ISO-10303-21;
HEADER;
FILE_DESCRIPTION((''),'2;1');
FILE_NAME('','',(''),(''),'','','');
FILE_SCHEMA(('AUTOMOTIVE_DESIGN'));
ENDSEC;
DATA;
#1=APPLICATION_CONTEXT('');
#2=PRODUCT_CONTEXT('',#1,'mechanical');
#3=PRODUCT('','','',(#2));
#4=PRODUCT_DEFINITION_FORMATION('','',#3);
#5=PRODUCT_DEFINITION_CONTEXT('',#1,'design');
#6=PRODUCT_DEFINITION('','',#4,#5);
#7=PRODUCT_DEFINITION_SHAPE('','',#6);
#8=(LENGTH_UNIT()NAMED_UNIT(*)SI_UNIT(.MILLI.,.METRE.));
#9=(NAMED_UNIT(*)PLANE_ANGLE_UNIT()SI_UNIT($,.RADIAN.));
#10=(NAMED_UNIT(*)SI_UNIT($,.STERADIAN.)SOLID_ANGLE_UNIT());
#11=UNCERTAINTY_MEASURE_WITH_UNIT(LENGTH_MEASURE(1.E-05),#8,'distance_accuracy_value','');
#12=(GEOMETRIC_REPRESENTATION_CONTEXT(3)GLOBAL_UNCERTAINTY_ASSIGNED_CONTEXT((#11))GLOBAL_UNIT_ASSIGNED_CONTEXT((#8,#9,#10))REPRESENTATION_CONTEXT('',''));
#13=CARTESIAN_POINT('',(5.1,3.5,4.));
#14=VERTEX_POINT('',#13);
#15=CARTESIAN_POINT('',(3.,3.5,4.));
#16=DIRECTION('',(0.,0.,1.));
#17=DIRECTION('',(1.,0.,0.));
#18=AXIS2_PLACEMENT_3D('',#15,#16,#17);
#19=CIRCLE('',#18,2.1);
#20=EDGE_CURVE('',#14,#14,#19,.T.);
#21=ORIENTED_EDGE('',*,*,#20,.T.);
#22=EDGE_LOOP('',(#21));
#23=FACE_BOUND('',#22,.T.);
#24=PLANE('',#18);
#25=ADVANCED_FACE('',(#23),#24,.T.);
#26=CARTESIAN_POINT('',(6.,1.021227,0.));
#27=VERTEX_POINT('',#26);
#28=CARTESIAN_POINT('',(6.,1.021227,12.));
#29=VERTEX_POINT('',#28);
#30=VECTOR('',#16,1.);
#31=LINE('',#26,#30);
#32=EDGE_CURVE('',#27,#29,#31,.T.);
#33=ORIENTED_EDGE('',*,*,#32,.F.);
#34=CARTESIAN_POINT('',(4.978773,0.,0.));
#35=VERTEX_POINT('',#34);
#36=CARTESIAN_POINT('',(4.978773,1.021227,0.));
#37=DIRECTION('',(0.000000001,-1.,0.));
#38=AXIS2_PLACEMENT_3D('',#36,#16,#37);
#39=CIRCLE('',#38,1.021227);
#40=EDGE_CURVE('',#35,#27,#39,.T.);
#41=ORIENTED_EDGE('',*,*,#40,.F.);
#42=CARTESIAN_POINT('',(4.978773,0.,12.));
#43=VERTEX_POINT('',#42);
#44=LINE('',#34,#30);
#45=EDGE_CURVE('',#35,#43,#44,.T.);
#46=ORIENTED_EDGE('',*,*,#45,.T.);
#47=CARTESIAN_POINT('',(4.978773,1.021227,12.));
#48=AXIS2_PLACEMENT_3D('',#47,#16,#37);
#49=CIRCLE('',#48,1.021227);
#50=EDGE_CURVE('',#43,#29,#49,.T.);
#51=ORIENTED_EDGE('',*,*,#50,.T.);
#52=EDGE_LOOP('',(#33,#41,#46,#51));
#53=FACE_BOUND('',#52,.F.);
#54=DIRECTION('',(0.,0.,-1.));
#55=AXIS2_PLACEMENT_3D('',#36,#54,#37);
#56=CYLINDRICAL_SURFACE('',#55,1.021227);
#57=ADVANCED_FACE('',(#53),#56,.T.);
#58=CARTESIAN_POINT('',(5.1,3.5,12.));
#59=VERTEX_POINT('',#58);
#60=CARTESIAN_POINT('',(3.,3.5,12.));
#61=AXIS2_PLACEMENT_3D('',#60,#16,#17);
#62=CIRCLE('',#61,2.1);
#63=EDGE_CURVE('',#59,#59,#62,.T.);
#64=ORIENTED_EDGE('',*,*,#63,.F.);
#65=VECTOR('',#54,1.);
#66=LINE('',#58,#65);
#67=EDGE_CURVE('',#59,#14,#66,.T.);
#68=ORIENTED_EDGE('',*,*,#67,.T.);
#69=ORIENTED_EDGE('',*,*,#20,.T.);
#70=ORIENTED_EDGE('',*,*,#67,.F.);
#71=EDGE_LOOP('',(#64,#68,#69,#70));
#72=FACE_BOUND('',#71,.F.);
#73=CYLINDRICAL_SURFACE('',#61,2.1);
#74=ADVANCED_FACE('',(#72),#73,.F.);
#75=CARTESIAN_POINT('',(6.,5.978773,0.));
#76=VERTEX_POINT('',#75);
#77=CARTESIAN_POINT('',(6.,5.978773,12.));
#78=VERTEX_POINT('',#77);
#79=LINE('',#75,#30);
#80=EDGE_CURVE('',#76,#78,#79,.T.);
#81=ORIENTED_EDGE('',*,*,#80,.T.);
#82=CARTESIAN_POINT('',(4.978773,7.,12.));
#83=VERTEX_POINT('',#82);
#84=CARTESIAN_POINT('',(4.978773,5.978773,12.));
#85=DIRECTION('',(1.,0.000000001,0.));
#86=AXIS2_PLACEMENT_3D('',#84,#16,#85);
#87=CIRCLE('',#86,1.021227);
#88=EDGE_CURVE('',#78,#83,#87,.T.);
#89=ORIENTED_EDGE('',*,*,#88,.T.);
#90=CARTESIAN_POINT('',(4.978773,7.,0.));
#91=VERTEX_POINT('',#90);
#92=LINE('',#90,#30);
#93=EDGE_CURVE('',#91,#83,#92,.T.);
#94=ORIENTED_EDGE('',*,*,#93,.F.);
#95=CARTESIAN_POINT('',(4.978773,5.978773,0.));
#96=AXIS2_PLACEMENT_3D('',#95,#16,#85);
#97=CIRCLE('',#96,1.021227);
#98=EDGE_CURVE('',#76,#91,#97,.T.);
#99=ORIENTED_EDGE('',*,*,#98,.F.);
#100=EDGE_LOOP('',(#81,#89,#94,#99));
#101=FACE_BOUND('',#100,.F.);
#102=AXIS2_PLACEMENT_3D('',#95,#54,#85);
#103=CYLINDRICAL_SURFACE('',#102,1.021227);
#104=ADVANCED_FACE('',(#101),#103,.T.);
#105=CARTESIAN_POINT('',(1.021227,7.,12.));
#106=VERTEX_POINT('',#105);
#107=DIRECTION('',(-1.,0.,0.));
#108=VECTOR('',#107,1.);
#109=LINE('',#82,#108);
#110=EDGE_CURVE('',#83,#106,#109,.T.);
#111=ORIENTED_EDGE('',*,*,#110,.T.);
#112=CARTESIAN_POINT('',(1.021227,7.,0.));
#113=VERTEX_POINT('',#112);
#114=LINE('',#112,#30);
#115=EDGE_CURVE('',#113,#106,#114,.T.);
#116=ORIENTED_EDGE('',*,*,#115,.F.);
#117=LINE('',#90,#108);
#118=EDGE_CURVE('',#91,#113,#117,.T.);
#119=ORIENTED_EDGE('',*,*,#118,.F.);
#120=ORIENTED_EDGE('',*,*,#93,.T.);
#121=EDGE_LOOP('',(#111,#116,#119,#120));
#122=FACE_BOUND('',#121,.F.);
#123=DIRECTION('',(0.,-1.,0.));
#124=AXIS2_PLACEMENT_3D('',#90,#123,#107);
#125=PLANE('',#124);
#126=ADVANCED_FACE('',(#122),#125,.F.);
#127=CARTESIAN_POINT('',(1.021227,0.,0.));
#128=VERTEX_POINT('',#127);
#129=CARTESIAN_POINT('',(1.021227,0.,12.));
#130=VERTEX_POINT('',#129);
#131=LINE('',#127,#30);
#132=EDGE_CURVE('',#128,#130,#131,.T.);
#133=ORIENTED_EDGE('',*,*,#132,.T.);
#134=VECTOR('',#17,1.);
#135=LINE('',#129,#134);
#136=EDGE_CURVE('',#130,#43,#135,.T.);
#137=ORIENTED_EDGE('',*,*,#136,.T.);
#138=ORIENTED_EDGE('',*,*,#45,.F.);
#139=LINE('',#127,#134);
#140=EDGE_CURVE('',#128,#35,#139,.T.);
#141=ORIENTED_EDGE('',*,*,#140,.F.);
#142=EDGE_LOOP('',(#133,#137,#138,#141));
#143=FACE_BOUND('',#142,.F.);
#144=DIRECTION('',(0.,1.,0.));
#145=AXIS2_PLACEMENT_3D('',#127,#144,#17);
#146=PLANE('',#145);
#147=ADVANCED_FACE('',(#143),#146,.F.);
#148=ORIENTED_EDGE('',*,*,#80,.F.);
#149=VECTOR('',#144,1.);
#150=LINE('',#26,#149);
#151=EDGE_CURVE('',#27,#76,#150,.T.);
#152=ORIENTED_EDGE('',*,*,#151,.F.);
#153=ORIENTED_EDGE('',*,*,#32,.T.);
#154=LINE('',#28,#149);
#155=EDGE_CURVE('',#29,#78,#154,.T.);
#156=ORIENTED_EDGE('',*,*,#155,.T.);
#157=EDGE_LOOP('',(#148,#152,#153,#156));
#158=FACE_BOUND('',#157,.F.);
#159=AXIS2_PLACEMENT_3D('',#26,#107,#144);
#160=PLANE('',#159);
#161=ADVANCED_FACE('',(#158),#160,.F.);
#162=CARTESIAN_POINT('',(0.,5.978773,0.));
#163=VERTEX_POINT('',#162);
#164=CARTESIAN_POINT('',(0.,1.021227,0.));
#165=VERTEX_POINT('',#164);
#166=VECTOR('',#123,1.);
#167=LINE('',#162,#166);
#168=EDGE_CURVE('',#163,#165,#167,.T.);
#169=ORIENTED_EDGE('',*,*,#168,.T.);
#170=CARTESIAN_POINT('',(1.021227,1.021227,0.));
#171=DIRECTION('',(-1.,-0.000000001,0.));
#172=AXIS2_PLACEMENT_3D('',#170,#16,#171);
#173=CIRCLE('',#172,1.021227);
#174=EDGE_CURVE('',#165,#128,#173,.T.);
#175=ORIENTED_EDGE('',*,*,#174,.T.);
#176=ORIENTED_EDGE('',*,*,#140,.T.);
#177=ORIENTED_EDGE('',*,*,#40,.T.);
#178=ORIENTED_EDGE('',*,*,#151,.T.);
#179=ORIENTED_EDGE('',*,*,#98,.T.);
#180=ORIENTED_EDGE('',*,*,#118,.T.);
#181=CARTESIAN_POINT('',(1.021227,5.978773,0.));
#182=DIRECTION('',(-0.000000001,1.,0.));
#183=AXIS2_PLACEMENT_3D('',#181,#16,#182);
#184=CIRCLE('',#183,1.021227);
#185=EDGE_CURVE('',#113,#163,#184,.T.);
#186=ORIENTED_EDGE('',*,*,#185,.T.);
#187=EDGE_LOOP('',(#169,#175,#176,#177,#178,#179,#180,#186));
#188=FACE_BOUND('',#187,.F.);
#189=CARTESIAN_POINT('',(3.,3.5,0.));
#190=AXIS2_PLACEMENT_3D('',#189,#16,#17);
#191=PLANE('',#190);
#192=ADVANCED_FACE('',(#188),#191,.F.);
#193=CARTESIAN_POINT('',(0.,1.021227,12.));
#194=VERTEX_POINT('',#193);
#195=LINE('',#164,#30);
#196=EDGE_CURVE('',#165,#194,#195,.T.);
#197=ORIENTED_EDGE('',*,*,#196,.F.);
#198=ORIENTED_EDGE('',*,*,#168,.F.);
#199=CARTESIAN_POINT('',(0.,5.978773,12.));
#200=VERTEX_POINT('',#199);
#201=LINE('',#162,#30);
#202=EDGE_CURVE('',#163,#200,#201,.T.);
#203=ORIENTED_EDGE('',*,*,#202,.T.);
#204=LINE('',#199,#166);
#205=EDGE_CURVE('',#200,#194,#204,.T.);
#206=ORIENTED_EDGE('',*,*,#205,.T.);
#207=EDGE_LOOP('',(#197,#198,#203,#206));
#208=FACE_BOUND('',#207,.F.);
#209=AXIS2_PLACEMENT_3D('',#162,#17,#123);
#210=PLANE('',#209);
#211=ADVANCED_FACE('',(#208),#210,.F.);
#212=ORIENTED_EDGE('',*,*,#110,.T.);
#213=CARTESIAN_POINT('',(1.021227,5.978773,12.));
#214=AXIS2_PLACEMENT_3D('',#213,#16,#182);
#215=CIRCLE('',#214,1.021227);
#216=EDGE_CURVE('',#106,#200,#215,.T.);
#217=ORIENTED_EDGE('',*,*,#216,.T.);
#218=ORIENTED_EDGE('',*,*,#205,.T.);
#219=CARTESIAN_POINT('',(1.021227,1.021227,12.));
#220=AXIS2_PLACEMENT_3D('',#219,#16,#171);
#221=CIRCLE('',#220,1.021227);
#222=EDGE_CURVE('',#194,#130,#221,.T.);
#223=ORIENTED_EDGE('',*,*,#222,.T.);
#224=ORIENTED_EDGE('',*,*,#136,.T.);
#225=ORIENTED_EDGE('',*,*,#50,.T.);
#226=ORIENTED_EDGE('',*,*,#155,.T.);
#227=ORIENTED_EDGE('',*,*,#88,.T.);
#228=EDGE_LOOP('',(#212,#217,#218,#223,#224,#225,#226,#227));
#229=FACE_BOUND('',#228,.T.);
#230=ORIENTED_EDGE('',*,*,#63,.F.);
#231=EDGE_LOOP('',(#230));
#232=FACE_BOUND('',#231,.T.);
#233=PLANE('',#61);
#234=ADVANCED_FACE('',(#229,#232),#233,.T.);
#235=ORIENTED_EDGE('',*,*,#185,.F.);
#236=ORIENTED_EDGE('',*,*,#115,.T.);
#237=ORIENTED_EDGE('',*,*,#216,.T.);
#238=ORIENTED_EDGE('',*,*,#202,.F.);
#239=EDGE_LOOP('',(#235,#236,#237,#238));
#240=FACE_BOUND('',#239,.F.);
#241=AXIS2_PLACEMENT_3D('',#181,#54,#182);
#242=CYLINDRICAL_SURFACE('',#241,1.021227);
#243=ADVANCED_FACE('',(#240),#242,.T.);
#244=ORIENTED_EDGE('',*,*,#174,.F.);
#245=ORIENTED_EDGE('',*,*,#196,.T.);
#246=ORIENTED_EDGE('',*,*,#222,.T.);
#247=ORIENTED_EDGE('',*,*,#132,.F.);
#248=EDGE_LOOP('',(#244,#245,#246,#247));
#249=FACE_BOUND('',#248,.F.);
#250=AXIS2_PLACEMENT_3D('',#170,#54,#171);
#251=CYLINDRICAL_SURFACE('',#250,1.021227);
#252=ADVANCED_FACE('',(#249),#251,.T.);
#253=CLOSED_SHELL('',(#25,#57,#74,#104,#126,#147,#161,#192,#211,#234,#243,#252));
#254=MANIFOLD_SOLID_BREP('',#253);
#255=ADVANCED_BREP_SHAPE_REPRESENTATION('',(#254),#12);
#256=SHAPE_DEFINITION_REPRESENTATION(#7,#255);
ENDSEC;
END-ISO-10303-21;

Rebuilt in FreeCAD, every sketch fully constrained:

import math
import FreeCAD as App
import Part
import Sketcher

V = App.Vector

doc = App.newDocument("Part")
body = doc.addObject("PartDesign::Body", "Body")

# Sketch on XY plane
sketch1 = doc.addObject("Sketcher::SketchObject", "Sketch")
body.addObject(sketch1)
sketch1.AttachmentSupport = (doc.XY_Plane, [""])
sketch1.MapMode = "FlatFace"
sketch1.addGeometry([
    Part.LineSegment(V(1.021227, 0, 0), V(4.978773, 0, 0)),  # 0
    Part.ArcOfCircle(Part.Circle(V(4.978773, 1.021227, 0), V(0, 0, 1), 1.021227), math.radians(-90), math.radians(0)),  # 1
    Part.LineSegment(V(6, 1.021227, 0), V(6, 5.978773, 0)),  # 2
    Part.ArcOfCircle(Part.Circle(V(4.978773, 5.978773, 0), V(0, 0, 1), 1.021227), math.radians(0), math.radians(90)),  # 3
    Part.LineSegment(V(4.978773, 7, 0), V(1.021227, 7, 0)),  # 4
    Part.ArcOfCircle(Part.Circle(V(1.021227, 5.978773, 0), V(0, 0, 1), 1.021227), math.radians(90), math.radians(180)),  # 5
    Part.LineSegment(V(0, 5.978773, 0), V(0, 1.021227, 0)),  # 6
    Part.ArcOfCircle(Part.Circle(V(1.021227, 1.021227, 0), V(0, 0, 1), 1.021227), math.radians(-180), math.radians(-90)),  # 7
], False)
sketch1.addConstraint([
    Sketcher.Constraint("Tangent", 0, 2, 1, 1),
    Sketcher.Constraint("Tangent", 1, 2, 2, 1),
    Sketcher.Constraint("Tangent", 2, 2, 3, 1),
    Sketcher.Constraint("Tangent", 3, 2, 4, 1),
    Sketcher.Constraint("Tangent", 4, 2, 5, 1),
    Sketcher.Constraint("Tangent", 5, 2, 6, 1),
    Sketcher.Constraint("Tangent", 6, 2, 7, 1),
    Sketcher.Constraint("Tangent", 7, 2, 0, 1),
    Sketcher.Constraint("Horizontal", 0),
    Sketcher.Constraint("Vertical", 2),
    Sketcher.Constraint("Horizontal", 4),
    Sketcher.Constraint("Vertical", 6),
    Sketcher.Constraint("Equal", 1, 3),
    Sketcher.Constraint("Equal", 3, 5),
    Sketcher.Constraint("Equal", 5, 7),
    Sketcher.Constraint("PointOnObject", 0, 2, -1),
    Sketcher.Constraint("PointOnObject", 5, 2, -2),
    Sketcher.Constraint("DistanceX", -1, 1, 1, 2, 6.0),
    Sketcher.Constraint("DistanceY", -1, 1, 3, 2, 7.0),
    Sketcher.Constraint("Radius", 1, 1.021227),
])
pad1 = doc.addObject("PartDesign::Pad", "Pad")
body.addObject(pad1)
pad1.Profile = sketch1
pad1.Length = 12

# Sketch on XY plane
sketch2 = doc.addObject("Sketcher::SketchObject", "Sketch001")
body.addObject(sketch2)
sketch2.AttachmentSupport = (doc.XY_Plane, [""])
sketch2.MapMode = "FlatFace"
sketch2.AttachmentOffset = App.Placement(V(0, 0, 12), App.Rotation())
sketch2.addGeometry(Part.Circle(V(3, 3.5, 0), V(0, 0, 1), 2.1), False)
sketch2.addConstraint([
    Sketcher.Constraint("Diameter", 0, 4.2),
    Sketcher.Constraint("DistanceX", -1, 1, 0, 3, 3.0),
    Sketcher.Constraint("DistanceY", -1, 1, 0, 3, 3.5),
])
pocket1 = doc.addObject("PartDesign::Pocket", "Pocket")
body.addObject(pocket1)
pocket1.Profile = sketch2
pocket1.Length = 8

doc.recompute()
